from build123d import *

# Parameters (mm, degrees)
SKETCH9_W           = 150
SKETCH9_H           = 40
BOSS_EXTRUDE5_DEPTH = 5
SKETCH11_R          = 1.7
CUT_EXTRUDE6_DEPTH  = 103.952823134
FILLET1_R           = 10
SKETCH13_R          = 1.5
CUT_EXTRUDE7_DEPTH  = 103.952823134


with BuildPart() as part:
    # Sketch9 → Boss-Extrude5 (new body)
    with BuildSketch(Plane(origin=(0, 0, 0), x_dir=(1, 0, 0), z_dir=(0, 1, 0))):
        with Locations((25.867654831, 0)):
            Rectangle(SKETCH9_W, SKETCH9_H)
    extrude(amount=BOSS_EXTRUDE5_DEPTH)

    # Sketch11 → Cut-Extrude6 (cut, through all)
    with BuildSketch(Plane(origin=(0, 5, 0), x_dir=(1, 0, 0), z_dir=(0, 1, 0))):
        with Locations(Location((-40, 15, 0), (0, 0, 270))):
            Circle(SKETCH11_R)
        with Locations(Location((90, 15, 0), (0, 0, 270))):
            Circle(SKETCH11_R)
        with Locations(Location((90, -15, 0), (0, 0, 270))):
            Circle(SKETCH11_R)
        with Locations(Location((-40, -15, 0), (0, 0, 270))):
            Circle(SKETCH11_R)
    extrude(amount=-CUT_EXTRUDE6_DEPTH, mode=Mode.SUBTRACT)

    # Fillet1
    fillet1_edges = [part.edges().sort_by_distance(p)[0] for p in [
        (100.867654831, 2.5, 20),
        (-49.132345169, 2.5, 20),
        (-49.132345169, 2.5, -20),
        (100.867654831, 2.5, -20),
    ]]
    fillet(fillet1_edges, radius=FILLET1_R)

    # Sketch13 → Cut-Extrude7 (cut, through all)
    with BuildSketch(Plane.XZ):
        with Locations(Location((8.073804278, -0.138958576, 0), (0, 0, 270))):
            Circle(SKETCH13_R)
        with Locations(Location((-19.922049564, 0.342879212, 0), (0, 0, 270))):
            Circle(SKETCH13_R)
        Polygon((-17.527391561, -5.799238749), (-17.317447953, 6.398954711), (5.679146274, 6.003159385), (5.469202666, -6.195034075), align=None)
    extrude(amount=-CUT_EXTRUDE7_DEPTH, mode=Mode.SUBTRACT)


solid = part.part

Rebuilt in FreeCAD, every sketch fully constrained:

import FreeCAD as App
import Part
import Sketcher
Q = App.Units.Quantity


def edges_at(feature, points):
    """Names of the edges that pass closest to the given points."""
    edges = feature.Shape.Edges
    near = lambda p: min(range(len(edges)), key=lambda i: edges[i].distToShape(Part.Vertex(*p))[0])
    return sorted({f"Edge{near(p) + 1}" for p in points})

doc = App.newDocument("Part")
params = doc.addObject("Spreadsheet::Sheet", "Params")
for row, (alias, value) in enumerate([
    ("sketch1_width", "150 mm"),
    ("sketch1_height", "40 mm"),
    ("pad1_length", "5 mm"),
    ("sketch2_diameter", "3.4 mm"),
    ("fillet_radius", "10 mm"),
    ("sketch3_diameter", "3 mm"),
    ("sketch3_length", "23 mm"),
    ("sketch3_length2", "12.2 mm"),
], start=1):
    params.set(f"A{row}", alias)
    params.set(f"B{row}", "=" + value)
    params.setAlias(f"B{row}", alias)

body = doc.addObject("PartDesign::Body", "Body")

# Sketch on XZ plane
sketch1 = body.newObject("Sketcher::SketchObject", "Sketch")
sketch1.AttachmentSupport = (doc.getObject("XZ_Plane"), [""])
sketch1.MapMode = "FlatFace"
sketch1.addGeometry([
    Part.LineSegment(App.Vector(-49, -20, 0), App.Vector(-49, 20, 0)),
    Part.LineSegment(App.Vector(-49, 20, 0), App.Vector(101, 20, 0)),
    Part.LineSegment(App.Vector(101, 20, 0), App.Vector(101, -20, 0)),
    Part.LineSegment(App.Vector(101, -20, 0), App.Vector(-49, -20, 0)),
], False)
sketch1.addConstraint([
    Sketcher.Constraint("Coincident", 0, 2, 1, 1),
    Sketcher.Constraint("Coincident", 1, 2, 2, 1),
    Sketcher.Constraint("Coincident", 2, 2, 3, 1),
    Sketcher.Constraint("Coincident", 3, 2, 0, 1),
    Sketcher.Constraint("Vertical", 0),
    Sketcher.Constraint("Horizontal", 1),
    Sketcher.Constraint("Vertical", 2),
    Sketcher.Constraint("Horizontal", 3),
    Sketcher.Constraint("DistanceX", 1, 1, 1, 2, Q("150 mm")),
    Sketcher.Constraint("DistanceY", 0, 1, 0, 2, Q("40 mm")),
    Sketcher.Constraint("DistanceY", -1, 1, 0, 2, Q("20 mm")),
    Sketcher.Constraint("DistanceX", 0, 2, -1, 1, Q("49.132345 mm")),
])
sketch1.setExpression("Constraints[8]", "Params.sketch1_width")
sketch1.setExpression("Constraints[9]", "Params.sketch1_height")
pad1 = body.newObject("PartDesign::Pad", "Pad")
pad1.Profile = sketch1
pad1.setExpression("Length", "Params.pad1_length")
pad1.Reversed = True

# Sketch on XZ plane
sketch2 = body.newObject("Sketcher::SketchObject", "Sketch001")
sketch2.AttachmentSupport = (doc.getObject("XZ_Plane"), [""])
sketch2.MapMode = "FlatFace"
sketch2.AttachmentOffset = App.Placement(App.Vector(0, 0, -5), App.Rotation())
sketch2.addGeometry([
    Part.Circle(App.Vector(-40, -15, 0), App.Vector(0, 0, 1), 1.7),
    Part.Circle(App.Vector(90, -15, 0), App.Vector(0, 0, 1), 1.7),
    Part.Circle(App.Vector(90, 15, 0), App.Vector(0, 0, 1), 1.7),
    Part.Circle(App.Vector(-40, 15, 0), App.Vector(0, 0, 1), 1.7),
], False)
sketch2.addConstraint([
    Sketcher.Constraint("Equal", 0, 1),
    Sketcher.Constraint("Equal", 1, 2),
    Sketcher.Constraint("Equal", 2, 3),
    Sketcher.Constraint("Symmetric", 1, 3, 2, 3, -1),
    Sketcher.Constraint("Symmetric", 0, 3, 3, 3, -1),
    Sketcher.Constraint("Horizontal", 0, 3, 1, 3),
    Sketcher.Constraint("Diameter", 0, Q("3.4 mm")),
    Sketcher.Constraint("DistanceX", 0, 3, -1, 1, Q("40 mm")),
    Sketcher.Constraint("DistanceY", 0, 3, -1, 1, Q("15 mm")),
    Sketcher.Constraint("DistanceX", -1, 1, 1, 3, Q("90 mm")),
])
sketch2.setExpression("Constraints[6]", "Params.sketch2_diameter")
pocket1 = body.newObject("PartDesign::Pocket", "Pocket")
pocket1.Profile = sketch2
pocket1.Type = "ThroughAll"
pocket1.Reversed = True
doc.recompute()

fillet = body.newObject("PartDesign::Fillet", "Fillet")
fillet.Base = (pocket1, edges_at(pocket1, [
    (100.868, 2.5, 20),
    (-49.132, 2.5, 20),
    (-49.132, 2.5, -20),
    (100.868, 2.5, -20),
]))
fillet.setExpression("Radius", "Params.fillet_radius")

# Sketch on XZ plane
sketch3 = body.newObject("Sketcher::SketchObject", "Sketch002")
sketch3.AttachmentSupport = (doc.getObject("XZ_Plane"), [""])
sketch3.MapMode = "FlatFace"
sketch3.addGeometry([
    Part.Circle(App.Vector(8.1, -0.1, 0), App.Vector(0, 0, 1), 1.5),  # 0
    Part.Circle(App.Vector(-19.9, 0.3, 0), App.Vector(0, 0, 1), 1.5),  # 1
    Part.LineSegment(App.Vector(-17.3, 6.4, 0), App.Vector(-17.5, -5.8, 0)),  # 2
    Part.LineSegment(App.Vector(-17.5, -5.8, 0), App.Vector(5.5, -6.2, 0)),  # 3
    Part.LineSegment(App.Vector(5.5, -6.2, 0), App.Vector(5.7, 6, 0)),  # 4
    Part.LineSegment(App.Vector(5.7, 6, 0), App.Vector(-17.3, 6.4, 0)),  # 5
], False)
sketch3.addConstraint([
    Sketcher.Constraint("Coincident", 2, 2, 3, 1),
    Sketcher.Constraint("Coincident", 3, 2, 4, 1),
    Sketcher.Constraint("Coincident", 4, 2, 5, 1),
    Sketcher.Constraint("Coincident", 5, 2, 2, 1),
    Sketcher.Constraint("Equal", 0, 1),
    Sketcher.Constraint("Perpendicular", 2, 3),
    Sketcher.Constraint("Perpendicular", 3, 4),
    Sketcher.Constraint("Perpendicular", 4, 5),
    Sketcher.Constraint("Diameter", 0, Q("3 mm")),
    Sketcher.Constraint("Distance", 3, Q("23 mm")),
    Sketcher.Constraint("Distance", 2, Q("12.2 mm")),
    Sketcher.Constraint("DistanceX", 3, 2, 0, 3, Q("2.604602 mm")),
    Sketcher.Constraint("DistanceY", 2, 2, 4, 2, Q("11.802398 mm")),
    Sketcher.Constraint("DistanceX", 1, 3, 5, 2, Q("2.604602 mm")),
    Sketcher.Constraint("DistanceY", 0, 3, -1, 1, Q("0.138959 mm")),
    Sketcher.Constraint("DistanceX", 1, 3, -1, 1, Q("19.92205 mm")),
    Sketcher.Constraint("DistanceY", -1, 1, 1, 3, Q("0.342879 mm")),
    Sketcher.Constraint("DistanceY", 2, 2, -1, 1, Q("5.799239 mm")),
])
sketch3.setExpression("Constraints[8]", "Params.sketch3_diameter")
sketch3.setExpression("Constraints[9]", "Params.sketch3_length")
sketch3.setExpression("Constraints[10]", "Params.sketch3_length2")
pocket2 = body.newObject("PartDesign::Pocket", "Pocket001")
pocket2.Profile = sketch3
pocket2.Type = "ThroughAll"

doc.recompute()
